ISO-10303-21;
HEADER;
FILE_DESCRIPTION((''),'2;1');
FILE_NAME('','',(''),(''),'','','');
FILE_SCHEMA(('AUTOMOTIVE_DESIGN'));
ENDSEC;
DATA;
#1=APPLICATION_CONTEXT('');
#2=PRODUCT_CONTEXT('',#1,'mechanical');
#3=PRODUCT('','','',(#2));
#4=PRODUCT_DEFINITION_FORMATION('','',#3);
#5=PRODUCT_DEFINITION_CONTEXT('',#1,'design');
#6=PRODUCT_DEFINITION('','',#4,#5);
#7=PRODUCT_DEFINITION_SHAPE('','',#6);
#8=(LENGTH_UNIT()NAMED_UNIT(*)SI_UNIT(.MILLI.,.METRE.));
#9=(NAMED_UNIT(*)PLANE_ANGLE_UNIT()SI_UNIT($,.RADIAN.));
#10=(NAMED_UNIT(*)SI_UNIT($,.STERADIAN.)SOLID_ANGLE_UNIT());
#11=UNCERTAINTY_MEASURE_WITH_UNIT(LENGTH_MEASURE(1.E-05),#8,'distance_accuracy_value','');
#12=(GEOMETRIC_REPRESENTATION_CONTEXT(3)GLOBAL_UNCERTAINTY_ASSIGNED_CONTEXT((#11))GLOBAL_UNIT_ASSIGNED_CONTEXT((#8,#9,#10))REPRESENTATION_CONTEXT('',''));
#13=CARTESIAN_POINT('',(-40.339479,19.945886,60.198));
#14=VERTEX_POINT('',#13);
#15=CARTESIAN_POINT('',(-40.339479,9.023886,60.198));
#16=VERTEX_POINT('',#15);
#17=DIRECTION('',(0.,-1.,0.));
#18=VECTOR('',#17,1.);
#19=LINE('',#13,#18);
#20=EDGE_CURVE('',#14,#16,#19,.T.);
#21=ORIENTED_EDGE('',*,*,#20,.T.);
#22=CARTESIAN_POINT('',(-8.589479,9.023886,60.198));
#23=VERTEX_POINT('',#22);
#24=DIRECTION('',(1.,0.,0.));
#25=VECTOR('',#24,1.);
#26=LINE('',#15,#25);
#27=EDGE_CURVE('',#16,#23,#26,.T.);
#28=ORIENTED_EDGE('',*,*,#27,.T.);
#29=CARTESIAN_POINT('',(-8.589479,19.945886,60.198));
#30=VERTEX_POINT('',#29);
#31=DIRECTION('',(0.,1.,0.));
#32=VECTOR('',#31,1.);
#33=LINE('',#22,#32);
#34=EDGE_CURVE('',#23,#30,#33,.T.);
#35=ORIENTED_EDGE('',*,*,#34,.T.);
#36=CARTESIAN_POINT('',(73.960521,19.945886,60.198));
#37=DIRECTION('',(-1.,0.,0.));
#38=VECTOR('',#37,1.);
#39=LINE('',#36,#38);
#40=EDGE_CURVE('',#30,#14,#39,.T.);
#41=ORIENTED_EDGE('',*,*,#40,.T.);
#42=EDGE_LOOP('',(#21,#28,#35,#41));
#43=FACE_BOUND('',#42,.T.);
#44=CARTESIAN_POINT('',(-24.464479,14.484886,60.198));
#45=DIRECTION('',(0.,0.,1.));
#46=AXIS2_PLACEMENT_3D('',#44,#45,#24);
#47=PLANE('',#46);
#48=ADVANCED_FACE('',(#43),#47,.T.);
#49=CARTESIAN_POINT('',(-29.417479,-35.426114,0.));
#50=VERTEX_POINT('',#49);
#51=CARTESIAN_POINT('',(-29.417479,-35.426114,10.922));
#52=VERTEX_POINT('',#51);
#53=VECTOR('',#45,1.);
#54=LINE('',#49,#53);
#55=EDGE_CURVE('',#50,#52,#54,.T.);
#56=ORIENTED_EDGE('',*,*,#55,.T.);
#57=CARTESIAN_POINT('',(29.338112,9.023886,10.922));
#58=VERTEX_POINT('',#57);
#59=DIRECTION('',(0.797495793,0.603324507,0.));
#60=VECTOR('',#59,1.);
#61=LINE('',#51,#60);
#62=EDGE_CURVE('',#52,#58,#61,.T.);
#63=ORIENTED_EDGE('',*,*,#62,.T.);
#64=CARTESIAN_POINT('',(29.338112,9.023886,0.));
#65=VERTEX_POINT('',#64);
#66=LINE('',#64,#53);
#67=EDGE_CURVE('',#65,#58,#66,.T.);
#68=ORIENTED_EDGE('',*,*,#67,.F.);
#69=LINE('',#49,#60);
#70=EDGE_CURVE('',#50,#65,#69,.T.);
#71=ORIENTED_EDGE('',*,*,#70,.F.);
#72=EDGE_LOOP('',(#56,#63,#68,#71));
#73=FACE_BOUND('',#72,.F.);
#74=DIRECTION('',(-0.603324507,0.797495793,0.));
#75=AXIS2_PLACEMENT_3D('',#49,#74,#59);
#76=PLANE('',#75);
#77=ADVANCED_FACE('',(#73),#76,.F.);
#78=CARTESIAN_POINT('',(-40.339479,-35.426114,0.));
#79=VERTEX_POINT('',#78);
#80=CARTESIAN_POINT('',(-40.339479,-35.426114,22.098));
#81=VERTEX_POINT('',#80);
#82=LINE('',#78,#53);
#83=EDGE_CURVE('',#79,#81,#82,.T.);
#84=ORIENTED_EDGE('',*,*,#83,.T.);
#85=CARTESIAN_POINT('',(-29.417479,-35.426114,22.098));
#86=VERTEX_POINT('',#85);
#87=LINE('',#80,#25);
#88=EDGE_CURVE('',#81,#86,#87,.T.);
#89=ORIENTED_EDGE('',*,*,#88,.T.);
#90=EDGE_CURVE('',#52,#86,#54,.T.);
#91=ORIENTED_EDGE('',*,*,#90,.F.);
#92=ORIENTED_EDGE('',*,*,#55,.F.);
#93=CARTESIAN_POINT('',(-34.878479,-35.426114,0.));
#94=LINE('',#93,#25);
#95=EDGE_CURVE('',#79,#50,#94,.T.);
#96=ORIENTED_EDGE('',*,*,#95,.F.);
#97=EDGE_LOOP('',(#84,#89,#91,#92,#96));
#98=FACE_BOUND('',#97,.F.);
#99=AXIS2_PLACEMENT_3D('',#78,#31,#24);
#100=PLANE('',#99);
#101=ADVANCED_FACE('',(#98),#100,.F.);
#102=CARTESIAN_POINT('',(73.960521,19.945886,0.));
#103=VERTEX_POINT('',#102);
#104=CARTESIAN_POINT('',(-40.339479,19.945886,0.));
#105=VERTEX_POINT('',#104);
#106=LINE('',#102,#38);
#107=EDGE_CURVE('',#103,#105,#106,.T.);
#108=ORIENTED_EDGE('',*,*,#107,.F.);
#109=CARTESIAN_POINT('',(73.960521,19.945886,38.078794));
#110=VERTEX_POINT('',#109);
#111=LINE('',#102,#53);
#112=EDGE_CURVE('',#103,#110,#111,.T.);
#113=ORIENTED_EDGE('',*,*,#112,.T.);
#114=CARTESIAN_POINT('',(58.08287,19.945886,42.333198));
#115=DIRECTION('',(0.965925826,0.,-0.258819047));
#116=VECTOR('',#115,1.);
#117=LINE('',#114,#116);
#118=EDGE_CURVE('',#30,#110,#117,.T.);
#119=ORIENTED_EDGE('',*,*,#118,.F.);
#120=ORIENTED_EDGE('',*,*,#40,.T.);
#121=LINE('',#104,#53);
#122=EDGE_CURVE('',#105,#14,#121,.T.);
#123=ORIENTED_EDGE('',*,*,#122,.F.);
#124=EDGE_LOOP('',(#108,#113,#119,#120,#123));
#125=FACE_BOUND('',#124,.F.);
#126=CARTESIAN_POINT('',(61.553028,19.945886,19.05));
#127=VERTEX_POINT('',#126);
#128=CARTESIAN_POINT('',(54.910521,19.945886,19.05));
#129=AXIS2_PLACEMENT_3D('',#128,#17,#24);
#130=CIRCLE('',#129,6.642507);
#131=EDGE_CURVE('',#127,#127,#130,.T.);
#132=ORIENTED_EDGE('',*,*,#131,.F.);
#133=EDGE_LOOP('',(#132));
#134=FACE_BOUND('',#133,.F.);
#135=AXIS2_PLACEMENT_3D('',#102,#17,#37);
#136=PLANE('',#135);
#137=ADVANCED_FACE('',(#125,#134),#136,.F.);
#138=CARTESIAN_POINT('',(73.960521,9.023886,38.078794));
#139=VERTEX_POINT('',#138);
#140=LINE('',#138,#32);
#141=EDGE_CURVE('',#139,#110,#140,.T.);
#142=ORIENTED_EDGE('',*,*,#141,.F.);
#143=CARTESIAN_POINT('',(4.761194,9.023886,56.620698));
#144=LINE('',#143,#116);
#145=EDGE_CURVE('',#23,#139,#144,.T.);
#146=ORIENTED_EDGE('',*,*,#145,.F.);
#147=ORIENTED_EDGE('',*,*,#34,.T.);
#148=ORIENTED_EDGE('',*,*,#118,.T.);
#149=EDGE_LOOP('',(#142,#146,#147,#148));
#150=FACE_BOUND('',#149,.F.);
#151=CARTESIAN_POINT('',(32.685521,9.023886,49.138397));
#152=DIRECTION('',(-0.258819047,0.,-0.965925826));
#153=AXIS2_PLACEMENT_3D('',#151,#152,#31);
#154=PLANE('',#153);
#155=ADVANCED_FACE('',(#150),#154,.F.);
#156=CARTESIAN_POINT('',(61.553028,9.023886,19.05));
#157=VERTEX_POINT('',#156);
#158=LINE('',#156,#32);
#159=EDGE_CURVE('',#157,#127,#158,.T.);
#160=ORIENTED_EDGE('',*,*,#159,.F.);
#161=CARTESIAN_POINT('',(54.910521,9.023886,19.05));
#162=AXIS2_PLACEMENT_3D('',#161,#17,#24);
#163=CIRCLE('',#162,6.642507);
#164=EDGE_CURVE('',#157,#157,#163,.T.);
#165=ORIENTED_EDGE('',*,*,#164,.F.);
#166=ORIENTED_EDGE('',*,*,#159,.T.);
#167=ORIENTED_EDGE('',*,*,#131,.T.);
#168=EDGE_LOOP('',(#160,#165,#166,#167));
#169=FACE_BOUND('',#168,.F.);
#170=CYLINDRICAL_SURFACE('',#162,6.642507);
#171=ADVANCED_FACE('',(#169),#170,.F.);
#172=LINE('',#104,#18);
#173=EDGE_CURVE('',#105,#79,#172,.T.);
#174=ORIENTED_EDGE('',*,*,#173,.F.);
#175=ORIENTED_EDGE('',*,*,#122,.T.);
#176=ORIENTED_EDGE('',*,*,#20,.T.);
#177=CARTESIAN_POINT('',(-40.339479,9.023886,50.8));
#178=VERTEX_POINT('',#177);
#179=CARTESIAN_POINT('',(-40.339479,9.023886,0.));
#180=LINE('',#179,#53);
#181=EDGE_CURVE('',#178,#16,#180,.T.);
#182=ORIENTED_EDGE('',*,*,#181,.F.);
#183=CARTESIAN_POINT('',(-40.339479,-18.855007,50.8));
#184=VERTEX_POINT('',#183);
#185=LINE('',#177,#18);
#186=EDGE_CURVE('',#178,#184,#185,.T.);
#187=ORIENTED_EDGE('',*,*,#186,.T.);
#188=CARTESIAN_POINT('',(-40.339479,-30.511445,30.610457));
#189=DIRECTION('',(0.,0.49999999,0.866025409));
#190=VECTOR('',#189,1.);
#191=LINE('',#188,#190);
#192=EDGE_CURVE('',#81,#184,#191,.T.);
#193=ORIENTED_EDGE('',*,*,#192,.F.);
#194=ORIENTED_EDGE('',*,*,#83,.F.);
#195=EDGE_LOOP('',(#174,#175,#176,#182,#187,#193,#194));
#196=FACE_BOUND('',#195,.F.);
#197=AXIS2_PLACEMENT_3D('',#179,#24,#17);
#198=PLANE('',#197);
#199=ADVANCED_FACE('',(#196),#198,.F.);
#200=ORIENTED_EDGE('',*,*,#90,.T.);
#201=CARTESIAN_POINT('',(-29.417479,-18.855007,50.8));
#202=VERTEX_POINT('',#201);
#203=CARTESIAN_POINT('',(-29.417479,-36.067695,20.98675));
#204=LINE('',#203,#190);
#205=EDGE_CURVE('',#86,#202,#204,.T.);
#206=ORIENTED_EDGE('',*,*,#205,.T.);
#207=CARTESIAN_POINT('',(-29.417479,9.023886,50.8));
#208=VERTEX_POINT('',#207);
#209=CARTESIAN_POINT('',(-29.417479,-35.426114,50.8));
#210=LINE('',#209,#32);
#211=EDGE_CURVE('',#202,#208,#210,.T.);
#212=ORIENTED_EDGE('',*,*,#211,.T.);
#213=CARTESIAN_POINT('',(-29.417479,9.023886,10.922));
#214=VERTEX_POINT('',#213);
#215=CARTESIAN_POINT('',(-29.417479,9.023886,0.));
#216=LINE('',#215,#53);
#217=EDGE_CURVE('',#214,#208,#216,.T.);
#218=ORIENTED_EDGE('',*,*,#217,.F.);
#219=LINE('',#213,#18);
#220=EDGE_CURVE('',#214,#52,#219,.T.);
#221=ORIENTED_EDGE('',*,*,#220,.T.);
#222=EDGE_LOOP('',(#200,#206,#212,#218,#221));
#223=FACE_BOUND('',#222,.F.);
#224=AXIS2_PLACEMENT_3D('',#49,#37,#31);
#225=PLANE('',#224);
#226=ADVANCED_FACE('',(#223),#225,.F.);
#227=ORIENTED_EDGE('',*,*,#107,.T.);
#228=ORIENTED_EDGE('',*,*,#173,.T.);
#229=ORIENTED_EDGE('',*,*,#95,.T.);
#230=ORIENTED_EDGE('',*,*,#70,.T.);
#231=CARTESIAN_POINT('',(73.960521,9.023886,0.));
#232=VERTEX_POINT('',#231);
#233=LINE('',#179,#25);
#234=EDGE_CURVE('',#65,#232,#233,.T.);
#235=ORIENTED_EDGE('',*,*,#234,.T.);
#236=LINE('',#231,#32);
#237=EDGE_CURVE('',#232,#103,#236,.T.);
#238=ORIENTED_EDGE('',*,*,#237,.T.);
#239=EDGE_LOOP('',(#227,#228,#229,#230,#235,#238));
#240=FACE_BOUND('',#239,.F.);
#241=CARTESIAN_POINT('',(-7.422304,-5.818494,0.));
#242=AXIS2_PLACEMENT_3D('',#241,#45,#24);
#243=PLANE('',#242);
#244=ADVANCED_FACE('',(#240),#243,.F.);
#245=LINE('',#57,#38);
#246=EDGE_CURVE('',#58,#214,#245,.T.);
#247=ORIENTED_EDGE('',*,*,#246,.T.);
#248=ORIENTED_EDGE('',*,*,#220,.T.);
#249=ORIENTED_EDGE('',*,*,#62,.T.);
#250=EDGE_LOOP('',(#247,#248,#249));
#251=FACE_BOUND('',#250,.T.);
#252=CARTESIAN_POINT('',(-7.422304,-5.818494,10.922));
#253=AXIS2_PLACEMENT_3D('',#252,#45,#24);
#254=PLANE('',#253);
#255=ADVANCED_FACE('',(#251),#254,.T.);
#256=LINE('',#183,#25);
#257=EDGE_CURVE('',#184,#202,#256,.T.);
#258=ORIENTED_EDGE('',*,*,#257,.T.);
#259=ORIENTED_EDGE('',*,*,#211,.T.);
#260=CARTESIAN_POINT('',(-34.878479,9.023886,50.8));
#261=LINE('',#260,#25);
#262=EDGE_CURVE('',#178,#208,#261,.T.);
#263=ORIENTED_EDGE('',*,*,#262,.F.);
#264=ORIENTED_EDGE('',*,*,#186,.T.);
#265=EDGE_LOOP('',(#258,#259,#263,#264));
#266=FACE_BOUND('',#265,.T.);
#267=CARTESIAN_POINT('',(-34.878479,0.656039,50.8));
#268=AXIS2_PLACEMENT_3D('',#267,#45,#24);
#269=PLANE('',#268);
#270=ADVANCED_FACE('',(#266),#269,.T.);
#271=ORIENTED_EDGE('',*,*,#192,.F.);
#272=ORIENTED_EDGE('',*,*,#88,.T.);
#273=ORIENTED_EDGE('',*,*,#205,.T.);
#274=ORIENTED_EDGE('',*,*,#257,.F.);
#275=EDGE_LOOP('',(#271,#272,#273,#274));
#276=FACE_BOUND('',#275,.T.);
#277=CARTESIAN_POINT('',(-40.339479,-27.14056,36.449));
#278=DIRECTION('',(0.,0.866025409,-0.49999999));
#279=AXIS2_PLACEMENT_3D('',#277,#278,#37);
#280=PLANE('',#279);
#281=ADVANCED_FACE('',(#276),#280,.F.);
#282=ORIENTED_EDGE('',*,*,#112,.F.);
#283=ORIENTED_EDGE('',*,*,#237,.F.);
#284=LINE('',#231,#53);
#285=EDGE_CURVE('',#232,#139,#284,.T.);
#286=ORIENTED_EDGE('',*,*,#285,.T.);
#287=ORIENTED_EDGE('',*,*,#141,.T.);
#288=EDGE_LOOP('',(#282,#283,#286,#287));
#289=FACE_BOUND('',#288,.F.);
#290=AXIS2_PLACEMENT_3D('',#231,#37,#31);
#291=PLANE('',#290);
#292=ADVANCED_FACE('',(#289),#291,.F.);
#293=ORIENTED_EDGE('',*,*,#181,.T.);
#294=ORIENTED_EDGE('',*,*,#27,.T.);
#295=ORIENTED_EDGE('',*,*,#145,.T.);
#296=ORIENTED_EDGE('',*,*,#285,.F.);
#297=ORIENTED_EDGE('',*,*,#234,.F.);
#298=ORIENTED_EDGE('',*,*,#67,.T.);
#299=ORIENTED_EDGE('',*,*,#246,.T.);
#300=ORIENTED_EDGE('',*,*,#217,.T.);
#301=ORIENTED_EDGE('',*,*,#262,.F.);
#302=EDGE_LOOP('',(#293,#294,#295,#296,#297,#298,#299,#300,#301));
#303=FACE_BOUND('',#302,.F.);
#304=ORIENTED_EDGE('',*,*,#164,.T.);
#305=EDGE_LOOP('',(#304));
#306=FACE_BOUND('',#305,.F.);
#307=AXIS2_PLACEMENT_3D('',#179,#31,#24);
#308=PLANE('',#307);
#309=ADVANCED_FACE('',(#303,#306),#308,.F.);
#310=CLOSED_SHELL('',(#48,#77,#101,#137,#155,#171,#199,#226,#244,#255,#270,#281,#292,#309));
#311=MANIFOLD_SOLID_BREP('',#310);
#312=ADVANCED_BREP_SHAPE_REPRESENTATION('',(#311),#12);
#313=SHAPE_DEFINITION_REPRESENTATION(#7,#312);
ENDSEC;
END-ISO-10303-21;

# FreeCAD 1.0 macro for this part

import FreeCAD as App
import Part
import Sketcher

V = App.Vector
Q = App.Units.Quantity


def edges_at(feature, points):
    """Names of the edges that pass closest to the given points."""
    edges = feature.Shape.Edges
    near = lambda p: min(range(len(edges)), key=lambda i: edges[i].distToShape(Part.Vertex(*p))[0])
    return sorted({f"Edge{near(p) + 1}" for p in points})

doc = App.newDocument("Part")
params = doc.addObject("Spreadsheet::Sheet", "Params")
for row, (alias, value) in enumerate([
    ("sketch1_width", "4.5 in"),
    ("sketch1_height", "0.43 in"),
    ("pad1_length", "2.37 in"),
    ("sketch2_width", "0.43 in"),
    ("sketch2_height", "1.75 in"),
    ("pad2_length", "2 in"),
    ("sketch3_height", "1.75 in"),
    ("pad3_length", "0.43 in"),
    ("chamfer_size", "1.13 in"),
    ("chamfer_size2", "16.571107 mm"),
    ("chamfer2_size", "3.25 in"),
    ("chamfer2_size2", "22.119206 mm"),
], start=1):
    params.set(f"A{row}", alias)
    params.set(f"B{row}", "=" + value)
    params.setAlias(f"B{row}", alias)

body = doc.addObject("PartDesign::Body", "Body")

# Sketch on XY plane
sketch1 = body.newObject("Sketcher::SketchObject", "Sketch")
sketch1.AttachmentSupport = (doc.getObject("XY_Plane"), [""])
sketch1.MapMode = "FlatFace"
sketch1.addGeometry([
    Part.LineSegment(V(-40, 20, 0), V(-40, 9, 0)),
    Part.LineSegment(V(-40, 9, 0), V(74, 9, 0)),
    Part.LineSegment(V(74, 9, 0), V(74, 20, 0)),
    Part.LineSegment(V(74, 20, 0), V(-40, 20, 0)),
], False)
sketch1.addConstraint([
    Sketcher.Constraint("Coincident", 0, 2, 1, 1),
    Sketcher.Constraint("Coincident", 1, 2, 2, 1),
    Sketcher.Constraint("Coincident", 2, 2, 3, 1),
    Sketcher.Constraint("Coincident", 3, 2, 0, 1),
    Sketcher.Constraint("Vertical", 0),
    Sketcher.Constraint("Horizontal", 1),
    Sketcher.Constraint("Vertical", 2),
    Sketcher.Constraint("Horizontal", 3),
    Sketcher.Constraint("DistanceX", 1, 1, 1, 2, Q("4.5 in")),
    Sketcher.Constraint("DistanceY", 0, 2, 0, 1, Q("0.43 in")),
    Sketcher.Constraint("DistanceX", 0, 2, -1, 1, Q("40.339479 mm")),
    Sketcher.Constraint("DistanceY", -1, 1, 0, 2, Q("9.023886 mm")),
])
sketch1.setExpression("Constraints[8]", "Params.sketch1_width")
sketch1.setExpression("Constraints[9]", "Params.sketch1_height")
pad1 = body.newObject("PartDesign::Pad", "Pad")
pad1.Profile = sketch1
pad1.setExpression("Length", "Params.pad1_length")

# Sketch on XY plane
sketch2 = body.newObject("Sketcher::SketchObject", "Sketch001")
sketch2.AttachmentSupport = (doc.getObject("XY_Plane"), [""])
sketch2.MapMode = "FlatFace"
sketch2.addGeometry([
    Part.LineSegment(V(-40, 9, 0), V(-40, -35, 0)),
    Part.LineSegment(V(-40, -35, 0), V(-29, -35, 0)),
    Part.LineSegment(V(-29, -35, 0), V(-29, 9, 0)),
    Part.LineSegment(V(-29, 9, 0), V(-40, 9, 0)),
], False)
sketch2.addConstraint([
    Sketcher.Constraint("Coincident", 0, 2, 1, 1),
    Sketcher.Constraint("Coincident", 1, 2, 2, 1),
    Sketcher.Constraint("Coincident", 2, 2, 3, 1),
    Sketcher.Constraint("Coincident", 3, 2, 0, 1),
    Sketcher.Constraint("Vertical", 0),
    Sketcher.Constraint("Horizontal", 1),
    Sketcher.Constraint("Vertical", 2),
    Sketcher.Constraint("Horizontal", 3),
    Sketcher.Constraint("DistanceX", 1, 1, 1, 2, Q("0.43 in")),
    Sketcher.Constraint("DistanceY", 0, 2, 0, 1, Q("1.75 in")),
    Sketcher.Constraint("DistanceX", 0, 2, -1, 1, Q("40.339479 mm")),
    Sketcher.Constraint("DistanceY", 0, 2, -1, 1, Q("35.426114 mm")),
])
sketch2.setExpression("Constraints[8]", "Params.sketch2_width")
sketch2.setExpression("Constraints[9]", "Params.sketch2_height")
pad2 = body.newObject("PartDesign::Pad", "Pad001")
pad2.Profile = sketch2
pad2.setExpression("Length", "Params.pad2_length")

# Sketch on XY plane
sketch3 = body.newObject("Sketcher::SketchObject", "Sketch002")
sketch3.AttachmentSupport = (doc.getObject("XY_Plane"), [""])
sketch3.MapMode = "FlatFace"
sketch3.addGeometry([
    Part.LineSegment(V(29, 9, 0), V(-29, 9, 0)),
    Part.LineSegment(V(-29, 9, 0), V(-29, -35, 0)),
    Part.LineSegment(V(-29, -35, 0), V(29, 9, 0)),
], False)
sketch3.addConstraint([
    Sketcher.Constraint("Coincident", 0, 2, 1, 1),
    Sketcher.Constraint("Coincident", 1, 2, 2, 1),
    Sketcher.Constraint("Coincident", 2, 2, 0, 1),
    Sketcher.Constraint("Horizontal", 0),
    Sketcher.Constraint("Vertical", 1),
    Sketcher.Constraint("DistanceY", 1, 2, 1, 1, Q("1.75 in")),
    Sketcher.Constraint("DistanceX", 0, 2, 0, 1, Q("58.755591 mm")),
    Sketcher.Constraint("DistanceX", 0, 2, -1, 1, Q("29.417479 mm")),
    Sketcher.Constraint("DistanceY", -1, 1, 0, 2, Q("9.023886 mm")),
])
sketch3.setExpression("Constraints[5]", "Params.sketch3_height")
pad3 = body.newObject("PartDesign::Pad", "Pad002")
pad3.Profile = sketch3
pad3.setExpression("Length", "Params.pad3_length")

# Sketch on XZ plane
sketch4 = body.newObject("Sketcher::SketchObject", "Sketch003")
sketch4.AttachmentSupport = (doc.getObject("XZ_Plane"), [""])
sketch4.MapMode = "FlatFace"
sketch4.AttachmentOffset = App.Placement(V(0, 0, -9.023886), App.Rotation())
sketch4.addGeometry(Part.Circle(V(55, 19, 0), V(0, 0, 1), 7), False)
sketch4.addConstraint([
    Sketcher.Constraint("DistanceY", -1, 1, 0, 3, Q("0.75 in")),
    Sketcher.Constraint("Diameter", 0, Q("13.285014 mm")),
    Sketcher.Constraint("DistanceX", -1, 1, 0, 3, Q("54.910521 mm")),
])
pocket1 = body.newObject("PartDesign::Pocket", "Pocket")
pocket1.Profile = sketch4
pocket1.Type = "ThroughAll"
doc.recompute()

chamfer = body.newObject("PartDesign::Chamfer", "Chamfer")
chamfer.Base = (pocket1, edges_at(pocket1, [(-34.878, -35.426, 50.8)]))
chamfer.ChamferType = "Two distances"
chamfer.setExpression("Size", "Params.chamfer_size")
chamfer.setExpression("Size2", "Params.chamfer_size2")
doc.recompute()

chamfer2 = body.newObject("PartDesign::Chamfer", "Chamfer001")
chamfer2.Base = (chamfer, edges_at(chamfer, [(73.961, 14.485, 60.198)]))
chamfer2.ChamferType = "Two distances"
chamfer2.setExpression("Size", "Params.chamfer2_size")
chamfer2.setExpression("Size2", "Params.chamfer2_size2")

doc.recompute()
